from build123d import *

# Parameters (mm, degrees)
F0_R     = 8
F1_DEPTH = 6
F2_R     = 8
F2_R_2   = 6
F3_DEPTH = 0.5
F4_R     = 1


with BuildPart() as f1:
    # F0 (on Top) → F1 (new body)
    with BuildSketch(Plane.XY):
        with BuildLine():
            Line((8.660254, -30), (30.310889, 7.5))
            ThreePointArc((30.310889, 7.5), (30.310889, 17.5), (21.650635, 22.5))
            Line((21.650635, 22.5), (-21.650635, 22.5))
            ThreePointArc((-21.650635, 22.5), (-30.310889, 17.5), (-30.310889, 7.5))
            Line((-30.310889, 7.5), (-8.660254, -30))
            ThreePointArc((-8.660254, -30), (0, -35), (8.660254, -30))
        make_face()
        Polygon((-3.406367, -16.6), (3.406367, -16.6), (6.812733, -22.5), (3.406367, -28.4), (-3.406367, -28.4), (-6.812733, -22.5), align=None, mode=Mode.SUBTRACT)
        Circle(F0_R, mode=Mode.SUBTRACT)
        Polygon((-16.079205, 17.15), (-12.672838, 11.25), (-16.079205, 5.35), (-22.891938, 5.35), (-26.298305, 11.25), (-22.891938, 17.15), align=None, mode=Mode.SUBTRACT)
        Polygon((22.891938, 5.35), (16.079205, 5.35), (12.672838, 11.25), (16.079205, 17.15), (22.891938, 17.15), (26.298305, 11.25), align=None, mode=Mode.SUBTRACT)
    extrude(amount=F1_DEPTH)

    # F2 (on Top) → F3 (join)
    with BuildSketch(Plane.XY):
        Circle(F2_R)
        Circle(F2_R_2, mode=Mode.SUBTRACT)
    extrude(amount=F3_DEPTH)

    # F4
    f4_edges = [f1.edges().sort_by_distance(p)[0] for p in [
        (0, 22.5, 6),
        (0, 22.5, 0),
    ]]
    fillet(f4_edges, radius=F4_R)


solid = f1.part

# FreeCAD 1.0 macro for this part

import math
import FreeCAD as App
import Part
import Sketcher

V = App.Vector
Q = App.Units.Quantity


def edges_at(feature, points):
    """Names of the edges that pass closest to the given points."""
    edges = feature.Shape.Edges
    near = lambda p: min(range(len(edges)), key=lambda i: edges[i].distToShape(Part.Vertex(*p))[0])
    return sorted({f"Edge{near(p) + 1}" for p in points})

doc = App.newDocument("Part")
body = doc.addObject("PartDesign::Body", "Body")

sketch1 = doc.addObject("Sketcher::SketchObject", "Sketch")
body.addObject(sketch1)
sketch1.AttachmentSupport = (doc.XY_Plane, [""])
sketch1.MapMode = "FlatFace"
sketch1.addGeometry(Part.LineSegment(V(9, -30, 0), V(30, 8, 0)), False)
sketch1.addGeometry(Part.ArcOfCircle(Part.Circle(V(22, 12, 0), V(0, 0, 1), 10), math.radians(-30), math.radians(90)), False)
sketch1.addGeometry(Part.LineSegment(V(22, 22, 0), V(-22, 22, 0)), False)
sketch1.addGeometry(Part.ArcOfCircle(Part.Circle(V(-22, 12, 0), V(0, 0, 1), 10), math.radians(90), math.radians(210)), False)
sketch1.addGeometry(Part.LineSegment(V(-30, 8, 0), V(-9, -30, 0)), False)
sketch1.addGeometry(Part.ArcOfCircle(Part.Circle(V(0, -25, 0), V(0, 0, 1), 10), math.radians(-150), math.radians(-30)), False)
sketch1.addGeometry(Part.LineSegment(V(-7, -22, 0), V(-3, -17, 0)), False)
sketch1.addGeometry(Part.LineSegment(V(-3, -17, 0), V(3, -17, 0)), False)
sketch1.addGeometry(Part.LineSegment(V(3, -17, 0), V(7, -22, 0)), False)
sketch1.addGeometry(Part.LineSegment(V(7, -22, 0), V(3, -28, 0)), False)
sketch1.addGeometry(Part.LineSegment(V(3, -28, 0), V(-3, -28, 0)), False)
sketch1.addGeometry(Part.LineSegment(V(-3, -28, 0), V(-7, -22, 0)), False)
sketch1.addGeometry(Part.LineSegment(V(-23, 17, 0), V(-16, 17, 0)), False)
sketch1.addGeometry(Part.LineSegment(V(-16, 17, 0), V(-13, 11, 0)), False)
sketch1.addGeometry(Part.LineSegment(V(-13, 11, 0), V(-16, 5, 0)), False)
sketch1.addGeometry(Part.LineSegment(V(-16, 5, 0), V(-23, 5, 0)), False)
sketch1.addGeometry(Part.LineSegment(V(-23, 5, 0), V(-26, 11, 0)), False)
sketch1.addGeometry(Part.LineSegment(V(-26, 11, 0), V(-23, 17, 0)), False)
sketch1.addGeometry(Part.Circle(V(0, 0, 0), V(0, 0, 1), 8), False)
sketch1.addGeometry(Part.LineSegment(V(26, 11, 0), V(23, 5, 0)), False)
sketch1.addGeometry(Part.LineSegment(V(23, 5, 0), V(16, 5, 0)), False)
sketch1.addGeometry(Part.LineSegment(V(16, 5, 0), V(13, 11, 0)), False)
sketch1.addGeometry(Part.LineSegment(V(13, 11, 0), V(16, 17, 0)), False)
sketch1.addGeometry(Part.LineSegment(V(16, 17, 0), V(23, 17, 0)), False)
sketch1.addGeometry(Part.LineSegment(V(23, 17, 0), V(26, 11, 0)), False)
sketch1.addConstraint(Sketcher.Constraint("Tangent", 0, 2, 1, 1))
sketch1.addConstraint(Sketcher.Constraint("Tangent", 1, 2, 2, 1))
sketch1.addConstraint(Sketcher.Constraint("Tangent", 2, 2, 3, 1))
sketch1.addConstraint(Sketcher.Constraint("Tangent", 3, 2, 4, 1))
sketch1.addConstraint(Sketcher.Constraint("Tangent", 4, 2, 5, 1))
sketch1.addConstraint(Sketcher.Constraint("Tangent", 5, 2, 0, 1))
sketch1.addConstraint(Sketcher.Constraint("Coincident", 6, 2, 7, 1))
sketch1.addConstraint(Sketcher.Constraint("Coincident", 7, 2, 8, 1))
sketch1.addConstraint(Sketcher.Constraint("Coincident", 8, 2, 9, 1))
sketch1.addConstraint(Sketcher.Constraint("Coincident", 9, 2, 10, 1))
sketch1.addConstraint(Sketcher.Constraint("Coincident", 10, 2, 11, 1))
sketch1.addConstraint(Sketcher.Constraint("Coincident", 11, 2, 6, 1))
sketch1.addConstraint(Sketcher.Constraint("Coincident", 12, 2, 13, 1))
sketch1.addConstraint(Sketcher.Constraint("Coincident", 13, 2, 14, 1))
sketch1.addConstraint(Sketcher.Constraint("Coincident", 14, 2, 15, 1))
sketch1.addConstraint(Sketcher.Constraint("Coincident", 15, 2, 16, 1))
sketch1.addConstraint(Sketcher.Constraint("Coincident", 16, 2, 17, 1))
sketch1.addConstraint(Sketcher.Constraint("Coincident", 17, 2, 12, 1))
sketch1.addConstraint(Sketcher.Constraint("Coincident", 19, 2, 20, 1))
sketch1.addConstraint(Sketcher.Constraint("Coincident", 20, 2, 21, 1))
sketch1.addConstraint(Sketcher.Constraint("Coincident", 21, 2, 22, 1))
sketch1.addConstraint(Sketcher.Constraint("Coincident", 22, 2, 23, 1))
sketch1.addConstraint(Sketcher.Constraint("Coincident", 23, 2, 24, 1))
sketch1.addConstraint(Sketcher.Constraint("Coincident", 24, 2, 19, 1))
sketch1.addConstraint(Sketcher.Constraint("Horizontal", 2))
sketch1.addConstraint(Sketcher.Constraint("Horizontal", 7))
sketch1.addConstraint(Sketcher.Constraint("Horizontal", 10))
sketch1.addConstraint(Sketcher.Constraint("Horizontal", 12))
sketch1.addConstraint(Sketcher.Constraint("Horizontal", 15))
sketch1.addConstraint(Sketcher.Constraint("Horizontal", 20))
sketch1.addConstraint(Sketcher.Constraint("Horizontal", 23))
sketch1.addConstraint(Sketcher.Constraint("Coincident", 18, 3, -1, 1))
sketch1.addConstraint(Sketcher.Constraint("Equal", 1, 3))
sketch1.addConstraint(Sketcher.Constraint("Equal", 3, 5))
sketch1.addConstraint(Sketcher.Constraint("Symmetric", 0, 2, 3, 2, -2))
sketch1.addConstraint(Sketcher.Constraint("Symmetric", 8, 2, 11, 2, -2))
sketch1.addConstraint(Sketcher.Constraint("Symmetric", 15, 2, 19, 2, -2))
sketch1.addConstraint(Sketcher.Constraint("Symmetric", 13, 2, 21, 2, -2))
sketch1.addConstraint(Sketcher.Constraint("Symmetric", 12, 2, 22, 2, -2))
sketch1.addConstraint(Sketcher.Constraint("Symmetric", 16, 2, 24, 2, -2))
sketch1.addConstraint(Sketcher.Constraint("Parallel", 0, 6))
sketch1.addConstraint(Sketcher.Constraint("Parallel", 4, 8))
sketch1.addConstraint(Sketcher.Constraint("Parallel", 6, 9))
sketch1.addConstraint(Sketcher.Constraint("Parallel", 8, 11))
sketch1.addConstraint(Sketcher.Constraint("Parallel", 11, 13))
sketch1.addConstraint(Sketcher.Constraint("Parallel", 9, 14))
sketch1.addConstraint(Sketcher.Constraint("Parallel", 13, 16))
sketch1.addConstraint(Sketcher.Constraint("Parallel", 14, 17))
sketch1.addConstraint(Sketcher.Constraint("Parallel", 16, 21))
sketch1.addConstraint(Sketcher.Constraint("Parallel", 21, 24))
sketch1.addConstraint(Sketcher.Constraint("Horizontal", 13, 2, 16, 2))
sketch1.addConstraint(Sketcher.Constraint("Vertical", 7, 2, 9, 2))
sketch1.addConstraint(Sketcher.Constraint("Vertical", 12, 2, 14, 2))
sketch1.addConstraint(Sketcher.Constraint("Equal", 10, 12))
sketch1.addConstraint(Sketcher.Constraint("Equal", 11, 13))
sketch1.addConstraint(Sketcher.Constraint("Diameter", 18, Q("16 mm")))
sketch1.addConstraint(Sketcher.Constraint("Radius", 1, Q("10 mm")))
sketch1.addConstraint(Sketcher.Constraint("Angle", 0, Q("60 deg")))
sketch1.addConstraint(Sketcher.Constraint("DistanceY", 5, 3, -1, 1, Q("25 mm")))
sketch1.addConstraint(Sketcher.Constraint("DistanceY", -1, 1, 1, 3, Q("12.5 mm")))
sketch1.addConstraint(Sketcher.Constraint("DistanceY", 6, 2, -1, 1, Q("16.6 mm")))
sketch1.addConstraint(Sketcher.Constraint("DistanceY", 8, 2, -1, 1, Q("22.5 mm")))
sketch1.addConstraint(Sketcher.Constraint("DistanceY", -1, 1, 12, 2, Q("17.15 mm")))
sketch1.addConstraint(Sketcher.Constraint("DistanceX", 6, 2, 8, 2, Q("10.2191 mm")))
sketch1.addConstraint(Sketcher.Constraint("DistanceX", 3, 3, 12, 2, Q("5.57143 mm")))
pad1 = doc.addObject("PartDesign::Pad", "Pad")
body.addObject(pad1)
pad1.Profile = sketch1
pad1.Length = 6

sketch2 = doc.addObject("Sketcher::SketchObject", "Sketch001")
body.addObject(sketch2)
sketch2.AttachmentSupport = (doc.XY_Plane, [""])
sketch2.MapMode = "FlatFace"
sketch2.addGeometry(Part.Circle(V(0, 0, 0), V(0, 0, 1), 8), False)
sketch2.addGeometry(Part.Circle(V(0, 0, 0), V(0, 0, 1), 6), False)
sketch2.addConstraint(Sketcher.Constraint("Coincident", 0, 3, -1, 1))
sketch2.addConstraint(Sketcher.Constraint("Coincident", 1, 3, -1, 1))
sketch2.addConstraint(Sketcher.Constraint("Diameter", 0, Q("16 mm")))
sketch2.addConstraint(Sketcher.Constraint("Diameter", 1, Q("12 mm")))
pad2 = doc.addObject("PartDesign::Pad", "Pad001")
body.addObject(pad2)
pad2.Profile = sketch2
pad2.Length = 0.5
doc.recompute()

fillet = doc.addObject("PartDesign::Fillet", "Fillet")
body.addObject(fillet)
fillet.Base = (pad2, edges_at(pad2, [(0, 22.5, 6), (0, 22.5, 0)]))
fillet.Radius = 1

doc.recompute()
